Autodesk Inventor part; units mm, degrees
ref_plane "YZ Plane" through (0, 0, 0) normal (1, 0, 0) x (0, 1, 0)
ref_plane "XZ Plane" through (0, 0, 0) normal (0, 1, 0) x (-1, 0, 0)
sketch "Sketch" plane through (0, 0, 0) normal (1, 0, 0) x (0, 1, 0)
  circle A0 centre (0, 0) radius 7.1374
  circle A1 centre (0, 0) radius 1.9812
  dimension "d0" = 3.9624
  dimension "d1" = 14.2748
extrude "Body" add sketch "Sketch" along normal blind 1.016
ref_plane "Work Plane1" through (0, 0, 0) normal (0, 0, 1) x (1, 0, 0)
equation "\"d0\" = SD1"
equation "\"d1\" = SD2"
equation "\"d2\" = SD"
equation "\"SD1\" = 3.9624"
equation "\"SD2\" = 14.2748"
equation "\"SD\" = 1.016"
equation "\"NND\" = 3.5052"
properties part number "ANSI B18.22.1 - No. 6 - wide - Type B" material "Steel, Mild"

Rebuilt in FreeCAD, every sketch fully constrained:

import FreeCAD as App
import Part
import Sketcher
from FreeCAD import Vector
Q = App.Units.Quantity

doc = App.newDocument("Part")
body = doc.addObject("PartDesign::Body", "Body")

# Sketch on YZ plane
sketch1 = body.newObject("Sketcher::SketchObject", "Sketch")
sketch1.AttachmentSupport = (doc.getObject("YZ_Plane"), [""])
sketch1.MapMode = "FlatFace"
sketch1.addGeometry(Part.Circle(Vector(0, 0, 0), Vector(0, 0, 1), 7.1), False)
sketch1.addGeometry(Part.Circle(Vector(0, 0, 0), Vector(0, 0, 1), 2), False)
sketch1.addConstraint(Sketcher.Constraint("Coincident", 0, 3, -1, 1))
sketch1.addConstraint(Sketcher.Constraint("Coincident", 1, 3, -1, 1))
sketch1.addConstraint(Sketcher.Constraint("Diameter", 0, Q("0.562 in")))
sketch1.addConstraint(Sketcher.Constraint("Diameter", 1, Q("0.156 in")))
pad1 = body.newObject("PartDesign::Pad", "Pad")
pad1.Profile = sketch1
pad1.Length = Q("0.04 in")

doc.recompute()
